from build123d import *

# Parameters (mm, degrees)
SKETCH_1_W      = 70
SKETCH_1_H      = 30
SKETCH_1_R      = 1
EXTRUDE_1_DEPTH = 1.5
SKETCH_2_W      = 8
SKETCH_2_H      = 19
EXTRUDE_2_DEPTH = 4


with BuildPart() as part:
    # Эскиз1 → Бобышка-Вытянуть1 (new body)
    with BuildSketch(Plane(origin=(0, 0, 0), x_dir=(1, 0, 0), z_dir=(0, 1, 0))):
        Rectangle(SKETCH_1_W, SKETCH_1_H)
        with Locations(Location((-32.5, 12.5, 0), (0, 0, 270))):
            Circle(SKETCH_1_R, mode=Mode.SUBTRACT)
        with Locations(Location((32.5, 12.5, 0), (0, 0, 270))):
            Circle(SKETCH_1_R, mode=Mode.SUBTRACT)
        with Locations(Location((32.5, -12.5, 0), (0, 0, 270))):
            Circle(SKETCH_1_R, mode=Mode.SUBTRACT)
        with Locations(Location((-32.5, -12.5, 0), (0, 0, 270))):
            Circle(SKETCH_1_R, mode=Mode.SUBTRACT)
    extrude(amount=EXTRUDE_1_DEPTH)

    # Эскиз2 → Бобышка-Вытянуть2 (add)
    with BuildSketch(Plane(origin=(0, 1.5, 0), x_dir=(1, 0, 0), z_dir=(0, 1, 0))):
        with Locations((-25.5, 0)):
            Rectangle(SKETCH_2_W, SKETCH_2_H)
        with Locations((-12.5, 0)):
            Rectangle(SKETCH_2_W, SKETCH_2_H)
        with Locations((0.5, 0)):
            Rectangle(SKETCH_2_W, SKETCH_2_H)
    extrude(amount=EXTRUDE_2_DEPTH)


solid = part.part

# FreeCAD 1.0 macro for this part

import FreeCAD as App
import Part
import Sketcher
Q = App.Units.Quantity

doc = App.newDocument("Part")
body = doc.addObject("PartDesign::Body", "Body")

# Sketch on XZ plane
sketch1 = body.newObject("Sketcher::SketchObject", "Sketch")
sketch1.AttachmentSupport = (doc.getObject("XZ_Plane"), [""])
sketch1.MapMode = "FlatFace"
sketch1.addGeometry([
    Part.LineSegment(App.Vector(-35, -15, 0), App.Vector(-35, 15, 0)),  # 0
    Part.LineSegment(App.Vector(-35, 15, 0), App.Vector(35, 15, 0)),  # 1
    Part.LineSegment(App.Vector(35, 15, 0), App.Vector(35, -15, 0)),  # 2
    Part.LineSegment(App.Vector(35, -15, 0), App.Vector(-35, -15, 0)),  # 3
    Part.Circle(App.Vector(-32.5, 12.5, 0), App.Vector(0, 0, 1), 1),  # 4
    Part.Circle(App.Vector(32.5, 12.5, 0), App.Vector(0, 0, 1), 1),  # 5
    Part.Circle(App.Vector(-32.5, -12.5, 0), App.Vector(0, 0, 1), 1),  # 6
    Part.Circle(App.Vector(32.5, -12.5, 0), App.Vector(0, 0, 1), 1),  # 7
], False)
sketch1.addConstraint([
    Sketcher.Constraint("Coincident", 0, 2, 1, 1),
    Sketcher.Constraint("Coincident", 1, 2, 2, 1),
    Sketcher.Constraint("Coincident", 2, 2, 3, 1),
    Sketcher.Constraint("Coincident", 3, 2, 0, 1),
    Sketcher.Constraint("Vertical", 0),
    Sketcher.Constraint("Horizontal", 1),
    Sketcher.Constraint("Vertical", 2),
    Sketcher.Constraint("Horizontal", 3),
    Sketcher.Constraint("Equal", 4, 5),
    Sketcher.Constraint("Equal", 5, 6),
    Sketcher.Constraint("Equal", 6, 7),
    Sketcher.Constraint("Symmetric", 5, 3, 6, 3, -1, 1),
    Sketcher.Constraint("Symmetric", 4, 3, 7, 3, -1, 1),
    Sketcher.Constraint("Symmetric", 0, 2, 2, 2, -1, 1),
    Sketcher.Constraint("Symmetric", 4, 3, 5, 3, -2),
    Sketcher.Constraint("Diameter", 4, Q("2 mm")),
    Sketcher.Constraint("DistanceX", 1, 1, 1, 2, Q("70 mm")),
    Sketcher.Constraint("DistanceY", 0, 1, 0, 2, Q("30 mm")),
    Sketcher.Constraint("DistanceX", 4, 3, 5, 3, Q("65 mm")),
    Sketcher.Constraint("DistanceY", 6, 3, 4, 3, Q("25 mm")),
])
pad1 = body.newObject("PartDesign::Pad", "Pad")
pad1.Profile = sketch1
pad1.Length = 1.5
pad1.Reversed = True

# Sketch on XZ plane
sketch2 = body.newObject("Sketcher::SketchObject", "Sketch001")
sketch2.AttachmentSupport = (doc.getObject("XZ_Plane"), [""])
sketch2.MapMode = "FlatFace"
sketch2.AttachmentOffset = App.Placement(App.Vector(0, 0, -1.5), App.Rotation())
sketch2.addGeometry([
    Part.LineSegment(App.Vector(-30, -10, 0), App.Vector(-30, 10, 0)),  # 0
    Part.LineSegment(App.Vector(-30, 10, 0), App.Vector(-22, 10, 0)),  # 1
    Part.LineSegment(App.Vector(-22, 10, 0), App.Vector(-22, -10, 0)),  # 2
    Part.LineSegment(App.Vector(-22, -10, 0), App.Vector(-30, -10, 0)),  # 3
    Part.LineSegment(App.Vector(-16, -10, 0), App.Vector(-16, 10, 0)),  # 4
    Part.LineSegment(App.Vector(-16, 10, 0), App.Vector(-8, 10, 0)),  # 5
    Part.LineSegment(App.Vector(-8, 10, 0), App.Vector(-8, -10, 0)),  # 6
    Part.LineSegment(App.Vector(-8, -10, 0), App.Vector(-16, -10, 0)),  # 7
    Part.LineSegment(App.Vector(-4, -10, 0), App.Vector(-4, 10, 0)),  # 8
    Part.LineSegment(App.Vector(-4, 10, 0), App.Vector(4, 10, 0)),  # 9
    Part.LineSegment(App.Vector(4, 10, 0), App.Vector(4, -10, 0)),  # 10
    Part.LineSegment(App.Vector(4, -10, 0), App.Vector(-4, -10, 0)),  # 11
], False)
sketch2.addConstraint([
    Sketcher.Constraint("Coincident", 0, 2, 1, 1),
    Sketcher.Constraint("Coincident", 1, 2, 2, 1),
    Sketcher.Constraint("Coincident", 2, 2, 3, 1),
    Sketcher.Constraint("Coincident", 3, 2, 0, 1),
    Sketcher.Constraint("Coincident", 4, 2, 5, 1),
    Sketcher.Constraint("Coincident", 5, 2, 6, 1),
    Sketcher.Constraint("Coincident", 6, 2, 7, 1),
    Sketcher.Constraint("Coincident", 7, 2, 4, 1),
    Sketcher.Constraint("Coincident", 8, 2, 9, 1),
    Sketcher.Constraint("Coincident", 9, 2, 10, 1),
    Sketcher.Constraint("Coincident", 10, 2, 11, 1),
    Sketcher.Constraint("Coincident", 11, 2, 8, 1),
    Sketcher.Constraint("Vertical", 0),
    Sketcher.Constraint("Horizontal", 1),
    Sketcher.Constraint("Vertical", 2),
    Sketcher.Constraint("Horizontal", 3),
    Sketcher.Constraint("Vertical", 4),
    Sketcher.Constraint("Horizontal", 5),
    Sketcher.Constraint("Vertical", 6),
    Sketcher.Constraint("Horizontal", 7),
    Sketcher.Constraint("Vertical", 8),
    Sketcher.Constraint("Horizontal", 9),
    Sketcher.Constraint("Vertical", 10),
    Sketcher.Constraint("Horizontal", 11),
    Sketcher.Constraint("Horizontal", 1, 2, 4, 2),
    Sketcher.Constraint("Horizontal", 3, 2, 6, 2),
    Sketcher.Constraint("Horizontal", 5, 2, 8, 2),
    Sketcher.Constraint("Horizontal", 7, 2, 10, 2),
    Sketcher.Constraint("Equal", 3, 5),
    Sketcher.Constraint("Equal", 7, 9),
    Sketcher.Constraint("DistanceX", 1, 1, 1, 2, Q("8 mm")),
    Sketcher.Constraint("DistanceY", 0, 1, 0, 2, Q("19 mm")),
    Sketcher.Constraint("DistanceX", 1, 2, 4, 2, Q("5 mm")),
    Sketcher.Constraint("DistanceX", 5, 2, 8, 2, Q("5 mm")),
    Sketcher.Constraint("DistanceX", 0, 2, -1, 1, Q("29.5 mm")),
    Sketcher.Constraint("DistanceY", -1, 1, 0, 2, Q("9.5 mm")),
])
pad2 = body.newObject("PartDesign::Pad", "Pad001")
pad2.Profile = sketch2
pad2.Length = 4
pad2.Reversed = True

doc.recompute()
